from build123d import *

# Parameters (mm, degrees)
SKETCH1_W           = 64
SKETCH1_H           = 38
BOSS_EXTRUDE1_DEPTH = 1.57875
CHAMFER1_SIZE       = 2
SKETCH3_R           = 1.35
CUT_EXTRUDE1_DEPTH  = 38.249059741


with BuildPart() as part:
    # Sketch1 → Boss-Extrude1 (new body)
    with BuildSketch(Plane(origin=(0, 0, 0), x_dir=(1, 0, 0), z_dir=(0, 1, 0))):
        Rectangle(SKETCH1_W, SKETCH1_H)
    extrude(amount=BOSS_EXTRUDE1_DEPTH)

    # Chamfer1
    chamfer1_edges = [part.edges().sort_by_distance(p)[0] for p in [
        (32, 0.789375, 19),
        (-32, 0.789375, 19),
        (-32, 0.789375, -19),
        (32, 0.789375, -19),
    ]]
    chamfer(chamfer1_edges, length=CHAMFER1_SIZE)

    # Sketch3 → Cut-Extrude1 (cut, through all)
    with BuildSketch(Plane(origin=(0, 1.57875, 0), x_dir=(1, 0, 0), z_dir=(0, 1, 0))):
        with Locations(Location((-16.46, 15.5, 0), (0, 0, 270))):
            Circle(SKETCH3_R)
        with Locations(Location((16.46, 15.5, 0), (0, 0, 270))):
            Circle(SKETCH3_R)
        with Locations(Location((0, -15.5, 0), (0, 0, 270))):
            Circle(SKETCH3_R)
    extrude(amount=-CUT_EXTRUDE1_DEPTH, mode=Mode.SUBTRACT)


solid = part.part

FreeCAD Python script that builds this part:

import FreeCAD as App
import Part
import Sketcher
from FreeCAD import Vector
Q = App.Units.Quantity


def edges_at(feature, points):
    """Names of the edges that pass closest to the given points."""
    edges = feature.Shape.Edges
    near = lambda p: min(range(len(edges)), key=lambda i: edges[i].distToShape(Part.Vertex(*p))[0])
    return sorted({f"Edge{near(p) + 1}" for p in points})

doc = App.newDocument("Part")
body = doc.addObject("PartDesign::Body", "Body")

# Sketch on XZ plane
sketch1 = doc.addObject("Sketcher::SketchObject", "Sketch")
body.addObject(sketch1)
sketch1.AttachmentSupport = (doc.XZ_Plane, [""])
sketch1.MapMode = "FlatFace"
sketch1.addGeometry([
    Part.LineSegment(Vector(-32, -19, 0), Vector(-32, 19, 0)),
    Part.LineSegment(Vector(-32, 19, 0), Vector(32, 19, 0)),
    Part.LineSegment(Vector(32, 19, 0), Vector(32, -19, 0)),
    Part.LineSegment(Vector(32, -19, 0), Vector(-32, -19, 0)),
], False)
sketch1.addConstraint([
    Sketcher.Constraint("Coincident", 0, 2, 1, 1),
    Sketcher.Constraint("Coincident", 1, 2, 2, 1),
    Sketcher.Constraint("Coincident", 2, 2, 3, 1),
    Sketcher.Constraint("Coincident", 3, 2, 0, 1),
    Sketcher.Constraint("Vertical", 0),
    Sketcher.Constraint("Horizontal", 1),
    Sketcher.Constraint("Vertical", 2),
    Sketcher.Constraint("Horizontal", 3),
    Sketcher.Constraint("Symmetric", 0, 2, 2, 2, -1, 1),
    Sketcher.Constraint("DistanceX", 1, 1, 1, 2, Q("64 mm")),
    Sketcher.Constraint("DistanceY", 0, 1, 0, 2, Q("38 mm")),
])
pad1 = doc.addObject("PartDesign::Pad", "Pad")
body.addObject(pad1)
pad1.Profile = sketch1
pad1.Length = 1.57875
pad1.Reversed = True
doc.recompute()

chamfer = doc.addObject("PartDesign::Chamfer", "Chamfer")
body.addObject(chamfer)
chamfer.Base = (pad1, edges_at(pad1, [
    (32, 0.789, 19),
    (-32, 0.789, 19),
    (-32, 0.789, -19),
    (32, 0.789, -19),
]))
chamfer.Size = 2

# Sketch on XZ plane
sketch2 = doc.addObject("Sketcher::SketchObject", "Sketch001")
body.addObject(sketch2)
sketch2.AttachmentSupport = (doc.XZ_Plane, [""])
sketch2.MapMode = "FlatFace"
sketch2.AttachmentOffset = App.Placement(Vector(0, 0, -1.57875), App.Rotation())
sketch2.addGeometry([
    Part.Circle(Vector(-16.5, -15.5, 0), Vector(0, 0, 1), 1.4),
    Part.Circle(Vector(16.5, -15.5, 0), Vector(0, 0, 1), 1.4),
    Part.Circle(Vector(0, 15.5, 0), Vector(0, 0, 1), 1.4),
], False)
sketch2.addConstraint([
    Sketcher.Constraint("Equal", 0, 1),
    Sketcher.Constraint("Equal", 1, 2),
    Sketcher.Constraint("Symmetric", 0, 3, 1, 3, -2),
    Sketcher.Constraint("PointOnObject", 2, 3, -2),
    Sketcher.Constraint("Diameter", 0, Q("2.7 mm")),
    Sketcher.Constraint("DistanceY", 0, 3, 2, 3, Q("31 mm")),
    Sketcher.Constraint("DistanceY", 0, 3, -1, 1, Q("15.5 mm")),
    Sketcher.Constraint("DistanceX", 0, 3, -1, 1, Q("16.46 mm")),
])
pocket1 = doc.addObject("PartDesign::Pocket", "Pocket")
body.addObject(pocket1)
pocket1.Profile = sketch2
pocket1.Type = "ThroughAll"
pocket1.Reversed = True

doc.recompute()
